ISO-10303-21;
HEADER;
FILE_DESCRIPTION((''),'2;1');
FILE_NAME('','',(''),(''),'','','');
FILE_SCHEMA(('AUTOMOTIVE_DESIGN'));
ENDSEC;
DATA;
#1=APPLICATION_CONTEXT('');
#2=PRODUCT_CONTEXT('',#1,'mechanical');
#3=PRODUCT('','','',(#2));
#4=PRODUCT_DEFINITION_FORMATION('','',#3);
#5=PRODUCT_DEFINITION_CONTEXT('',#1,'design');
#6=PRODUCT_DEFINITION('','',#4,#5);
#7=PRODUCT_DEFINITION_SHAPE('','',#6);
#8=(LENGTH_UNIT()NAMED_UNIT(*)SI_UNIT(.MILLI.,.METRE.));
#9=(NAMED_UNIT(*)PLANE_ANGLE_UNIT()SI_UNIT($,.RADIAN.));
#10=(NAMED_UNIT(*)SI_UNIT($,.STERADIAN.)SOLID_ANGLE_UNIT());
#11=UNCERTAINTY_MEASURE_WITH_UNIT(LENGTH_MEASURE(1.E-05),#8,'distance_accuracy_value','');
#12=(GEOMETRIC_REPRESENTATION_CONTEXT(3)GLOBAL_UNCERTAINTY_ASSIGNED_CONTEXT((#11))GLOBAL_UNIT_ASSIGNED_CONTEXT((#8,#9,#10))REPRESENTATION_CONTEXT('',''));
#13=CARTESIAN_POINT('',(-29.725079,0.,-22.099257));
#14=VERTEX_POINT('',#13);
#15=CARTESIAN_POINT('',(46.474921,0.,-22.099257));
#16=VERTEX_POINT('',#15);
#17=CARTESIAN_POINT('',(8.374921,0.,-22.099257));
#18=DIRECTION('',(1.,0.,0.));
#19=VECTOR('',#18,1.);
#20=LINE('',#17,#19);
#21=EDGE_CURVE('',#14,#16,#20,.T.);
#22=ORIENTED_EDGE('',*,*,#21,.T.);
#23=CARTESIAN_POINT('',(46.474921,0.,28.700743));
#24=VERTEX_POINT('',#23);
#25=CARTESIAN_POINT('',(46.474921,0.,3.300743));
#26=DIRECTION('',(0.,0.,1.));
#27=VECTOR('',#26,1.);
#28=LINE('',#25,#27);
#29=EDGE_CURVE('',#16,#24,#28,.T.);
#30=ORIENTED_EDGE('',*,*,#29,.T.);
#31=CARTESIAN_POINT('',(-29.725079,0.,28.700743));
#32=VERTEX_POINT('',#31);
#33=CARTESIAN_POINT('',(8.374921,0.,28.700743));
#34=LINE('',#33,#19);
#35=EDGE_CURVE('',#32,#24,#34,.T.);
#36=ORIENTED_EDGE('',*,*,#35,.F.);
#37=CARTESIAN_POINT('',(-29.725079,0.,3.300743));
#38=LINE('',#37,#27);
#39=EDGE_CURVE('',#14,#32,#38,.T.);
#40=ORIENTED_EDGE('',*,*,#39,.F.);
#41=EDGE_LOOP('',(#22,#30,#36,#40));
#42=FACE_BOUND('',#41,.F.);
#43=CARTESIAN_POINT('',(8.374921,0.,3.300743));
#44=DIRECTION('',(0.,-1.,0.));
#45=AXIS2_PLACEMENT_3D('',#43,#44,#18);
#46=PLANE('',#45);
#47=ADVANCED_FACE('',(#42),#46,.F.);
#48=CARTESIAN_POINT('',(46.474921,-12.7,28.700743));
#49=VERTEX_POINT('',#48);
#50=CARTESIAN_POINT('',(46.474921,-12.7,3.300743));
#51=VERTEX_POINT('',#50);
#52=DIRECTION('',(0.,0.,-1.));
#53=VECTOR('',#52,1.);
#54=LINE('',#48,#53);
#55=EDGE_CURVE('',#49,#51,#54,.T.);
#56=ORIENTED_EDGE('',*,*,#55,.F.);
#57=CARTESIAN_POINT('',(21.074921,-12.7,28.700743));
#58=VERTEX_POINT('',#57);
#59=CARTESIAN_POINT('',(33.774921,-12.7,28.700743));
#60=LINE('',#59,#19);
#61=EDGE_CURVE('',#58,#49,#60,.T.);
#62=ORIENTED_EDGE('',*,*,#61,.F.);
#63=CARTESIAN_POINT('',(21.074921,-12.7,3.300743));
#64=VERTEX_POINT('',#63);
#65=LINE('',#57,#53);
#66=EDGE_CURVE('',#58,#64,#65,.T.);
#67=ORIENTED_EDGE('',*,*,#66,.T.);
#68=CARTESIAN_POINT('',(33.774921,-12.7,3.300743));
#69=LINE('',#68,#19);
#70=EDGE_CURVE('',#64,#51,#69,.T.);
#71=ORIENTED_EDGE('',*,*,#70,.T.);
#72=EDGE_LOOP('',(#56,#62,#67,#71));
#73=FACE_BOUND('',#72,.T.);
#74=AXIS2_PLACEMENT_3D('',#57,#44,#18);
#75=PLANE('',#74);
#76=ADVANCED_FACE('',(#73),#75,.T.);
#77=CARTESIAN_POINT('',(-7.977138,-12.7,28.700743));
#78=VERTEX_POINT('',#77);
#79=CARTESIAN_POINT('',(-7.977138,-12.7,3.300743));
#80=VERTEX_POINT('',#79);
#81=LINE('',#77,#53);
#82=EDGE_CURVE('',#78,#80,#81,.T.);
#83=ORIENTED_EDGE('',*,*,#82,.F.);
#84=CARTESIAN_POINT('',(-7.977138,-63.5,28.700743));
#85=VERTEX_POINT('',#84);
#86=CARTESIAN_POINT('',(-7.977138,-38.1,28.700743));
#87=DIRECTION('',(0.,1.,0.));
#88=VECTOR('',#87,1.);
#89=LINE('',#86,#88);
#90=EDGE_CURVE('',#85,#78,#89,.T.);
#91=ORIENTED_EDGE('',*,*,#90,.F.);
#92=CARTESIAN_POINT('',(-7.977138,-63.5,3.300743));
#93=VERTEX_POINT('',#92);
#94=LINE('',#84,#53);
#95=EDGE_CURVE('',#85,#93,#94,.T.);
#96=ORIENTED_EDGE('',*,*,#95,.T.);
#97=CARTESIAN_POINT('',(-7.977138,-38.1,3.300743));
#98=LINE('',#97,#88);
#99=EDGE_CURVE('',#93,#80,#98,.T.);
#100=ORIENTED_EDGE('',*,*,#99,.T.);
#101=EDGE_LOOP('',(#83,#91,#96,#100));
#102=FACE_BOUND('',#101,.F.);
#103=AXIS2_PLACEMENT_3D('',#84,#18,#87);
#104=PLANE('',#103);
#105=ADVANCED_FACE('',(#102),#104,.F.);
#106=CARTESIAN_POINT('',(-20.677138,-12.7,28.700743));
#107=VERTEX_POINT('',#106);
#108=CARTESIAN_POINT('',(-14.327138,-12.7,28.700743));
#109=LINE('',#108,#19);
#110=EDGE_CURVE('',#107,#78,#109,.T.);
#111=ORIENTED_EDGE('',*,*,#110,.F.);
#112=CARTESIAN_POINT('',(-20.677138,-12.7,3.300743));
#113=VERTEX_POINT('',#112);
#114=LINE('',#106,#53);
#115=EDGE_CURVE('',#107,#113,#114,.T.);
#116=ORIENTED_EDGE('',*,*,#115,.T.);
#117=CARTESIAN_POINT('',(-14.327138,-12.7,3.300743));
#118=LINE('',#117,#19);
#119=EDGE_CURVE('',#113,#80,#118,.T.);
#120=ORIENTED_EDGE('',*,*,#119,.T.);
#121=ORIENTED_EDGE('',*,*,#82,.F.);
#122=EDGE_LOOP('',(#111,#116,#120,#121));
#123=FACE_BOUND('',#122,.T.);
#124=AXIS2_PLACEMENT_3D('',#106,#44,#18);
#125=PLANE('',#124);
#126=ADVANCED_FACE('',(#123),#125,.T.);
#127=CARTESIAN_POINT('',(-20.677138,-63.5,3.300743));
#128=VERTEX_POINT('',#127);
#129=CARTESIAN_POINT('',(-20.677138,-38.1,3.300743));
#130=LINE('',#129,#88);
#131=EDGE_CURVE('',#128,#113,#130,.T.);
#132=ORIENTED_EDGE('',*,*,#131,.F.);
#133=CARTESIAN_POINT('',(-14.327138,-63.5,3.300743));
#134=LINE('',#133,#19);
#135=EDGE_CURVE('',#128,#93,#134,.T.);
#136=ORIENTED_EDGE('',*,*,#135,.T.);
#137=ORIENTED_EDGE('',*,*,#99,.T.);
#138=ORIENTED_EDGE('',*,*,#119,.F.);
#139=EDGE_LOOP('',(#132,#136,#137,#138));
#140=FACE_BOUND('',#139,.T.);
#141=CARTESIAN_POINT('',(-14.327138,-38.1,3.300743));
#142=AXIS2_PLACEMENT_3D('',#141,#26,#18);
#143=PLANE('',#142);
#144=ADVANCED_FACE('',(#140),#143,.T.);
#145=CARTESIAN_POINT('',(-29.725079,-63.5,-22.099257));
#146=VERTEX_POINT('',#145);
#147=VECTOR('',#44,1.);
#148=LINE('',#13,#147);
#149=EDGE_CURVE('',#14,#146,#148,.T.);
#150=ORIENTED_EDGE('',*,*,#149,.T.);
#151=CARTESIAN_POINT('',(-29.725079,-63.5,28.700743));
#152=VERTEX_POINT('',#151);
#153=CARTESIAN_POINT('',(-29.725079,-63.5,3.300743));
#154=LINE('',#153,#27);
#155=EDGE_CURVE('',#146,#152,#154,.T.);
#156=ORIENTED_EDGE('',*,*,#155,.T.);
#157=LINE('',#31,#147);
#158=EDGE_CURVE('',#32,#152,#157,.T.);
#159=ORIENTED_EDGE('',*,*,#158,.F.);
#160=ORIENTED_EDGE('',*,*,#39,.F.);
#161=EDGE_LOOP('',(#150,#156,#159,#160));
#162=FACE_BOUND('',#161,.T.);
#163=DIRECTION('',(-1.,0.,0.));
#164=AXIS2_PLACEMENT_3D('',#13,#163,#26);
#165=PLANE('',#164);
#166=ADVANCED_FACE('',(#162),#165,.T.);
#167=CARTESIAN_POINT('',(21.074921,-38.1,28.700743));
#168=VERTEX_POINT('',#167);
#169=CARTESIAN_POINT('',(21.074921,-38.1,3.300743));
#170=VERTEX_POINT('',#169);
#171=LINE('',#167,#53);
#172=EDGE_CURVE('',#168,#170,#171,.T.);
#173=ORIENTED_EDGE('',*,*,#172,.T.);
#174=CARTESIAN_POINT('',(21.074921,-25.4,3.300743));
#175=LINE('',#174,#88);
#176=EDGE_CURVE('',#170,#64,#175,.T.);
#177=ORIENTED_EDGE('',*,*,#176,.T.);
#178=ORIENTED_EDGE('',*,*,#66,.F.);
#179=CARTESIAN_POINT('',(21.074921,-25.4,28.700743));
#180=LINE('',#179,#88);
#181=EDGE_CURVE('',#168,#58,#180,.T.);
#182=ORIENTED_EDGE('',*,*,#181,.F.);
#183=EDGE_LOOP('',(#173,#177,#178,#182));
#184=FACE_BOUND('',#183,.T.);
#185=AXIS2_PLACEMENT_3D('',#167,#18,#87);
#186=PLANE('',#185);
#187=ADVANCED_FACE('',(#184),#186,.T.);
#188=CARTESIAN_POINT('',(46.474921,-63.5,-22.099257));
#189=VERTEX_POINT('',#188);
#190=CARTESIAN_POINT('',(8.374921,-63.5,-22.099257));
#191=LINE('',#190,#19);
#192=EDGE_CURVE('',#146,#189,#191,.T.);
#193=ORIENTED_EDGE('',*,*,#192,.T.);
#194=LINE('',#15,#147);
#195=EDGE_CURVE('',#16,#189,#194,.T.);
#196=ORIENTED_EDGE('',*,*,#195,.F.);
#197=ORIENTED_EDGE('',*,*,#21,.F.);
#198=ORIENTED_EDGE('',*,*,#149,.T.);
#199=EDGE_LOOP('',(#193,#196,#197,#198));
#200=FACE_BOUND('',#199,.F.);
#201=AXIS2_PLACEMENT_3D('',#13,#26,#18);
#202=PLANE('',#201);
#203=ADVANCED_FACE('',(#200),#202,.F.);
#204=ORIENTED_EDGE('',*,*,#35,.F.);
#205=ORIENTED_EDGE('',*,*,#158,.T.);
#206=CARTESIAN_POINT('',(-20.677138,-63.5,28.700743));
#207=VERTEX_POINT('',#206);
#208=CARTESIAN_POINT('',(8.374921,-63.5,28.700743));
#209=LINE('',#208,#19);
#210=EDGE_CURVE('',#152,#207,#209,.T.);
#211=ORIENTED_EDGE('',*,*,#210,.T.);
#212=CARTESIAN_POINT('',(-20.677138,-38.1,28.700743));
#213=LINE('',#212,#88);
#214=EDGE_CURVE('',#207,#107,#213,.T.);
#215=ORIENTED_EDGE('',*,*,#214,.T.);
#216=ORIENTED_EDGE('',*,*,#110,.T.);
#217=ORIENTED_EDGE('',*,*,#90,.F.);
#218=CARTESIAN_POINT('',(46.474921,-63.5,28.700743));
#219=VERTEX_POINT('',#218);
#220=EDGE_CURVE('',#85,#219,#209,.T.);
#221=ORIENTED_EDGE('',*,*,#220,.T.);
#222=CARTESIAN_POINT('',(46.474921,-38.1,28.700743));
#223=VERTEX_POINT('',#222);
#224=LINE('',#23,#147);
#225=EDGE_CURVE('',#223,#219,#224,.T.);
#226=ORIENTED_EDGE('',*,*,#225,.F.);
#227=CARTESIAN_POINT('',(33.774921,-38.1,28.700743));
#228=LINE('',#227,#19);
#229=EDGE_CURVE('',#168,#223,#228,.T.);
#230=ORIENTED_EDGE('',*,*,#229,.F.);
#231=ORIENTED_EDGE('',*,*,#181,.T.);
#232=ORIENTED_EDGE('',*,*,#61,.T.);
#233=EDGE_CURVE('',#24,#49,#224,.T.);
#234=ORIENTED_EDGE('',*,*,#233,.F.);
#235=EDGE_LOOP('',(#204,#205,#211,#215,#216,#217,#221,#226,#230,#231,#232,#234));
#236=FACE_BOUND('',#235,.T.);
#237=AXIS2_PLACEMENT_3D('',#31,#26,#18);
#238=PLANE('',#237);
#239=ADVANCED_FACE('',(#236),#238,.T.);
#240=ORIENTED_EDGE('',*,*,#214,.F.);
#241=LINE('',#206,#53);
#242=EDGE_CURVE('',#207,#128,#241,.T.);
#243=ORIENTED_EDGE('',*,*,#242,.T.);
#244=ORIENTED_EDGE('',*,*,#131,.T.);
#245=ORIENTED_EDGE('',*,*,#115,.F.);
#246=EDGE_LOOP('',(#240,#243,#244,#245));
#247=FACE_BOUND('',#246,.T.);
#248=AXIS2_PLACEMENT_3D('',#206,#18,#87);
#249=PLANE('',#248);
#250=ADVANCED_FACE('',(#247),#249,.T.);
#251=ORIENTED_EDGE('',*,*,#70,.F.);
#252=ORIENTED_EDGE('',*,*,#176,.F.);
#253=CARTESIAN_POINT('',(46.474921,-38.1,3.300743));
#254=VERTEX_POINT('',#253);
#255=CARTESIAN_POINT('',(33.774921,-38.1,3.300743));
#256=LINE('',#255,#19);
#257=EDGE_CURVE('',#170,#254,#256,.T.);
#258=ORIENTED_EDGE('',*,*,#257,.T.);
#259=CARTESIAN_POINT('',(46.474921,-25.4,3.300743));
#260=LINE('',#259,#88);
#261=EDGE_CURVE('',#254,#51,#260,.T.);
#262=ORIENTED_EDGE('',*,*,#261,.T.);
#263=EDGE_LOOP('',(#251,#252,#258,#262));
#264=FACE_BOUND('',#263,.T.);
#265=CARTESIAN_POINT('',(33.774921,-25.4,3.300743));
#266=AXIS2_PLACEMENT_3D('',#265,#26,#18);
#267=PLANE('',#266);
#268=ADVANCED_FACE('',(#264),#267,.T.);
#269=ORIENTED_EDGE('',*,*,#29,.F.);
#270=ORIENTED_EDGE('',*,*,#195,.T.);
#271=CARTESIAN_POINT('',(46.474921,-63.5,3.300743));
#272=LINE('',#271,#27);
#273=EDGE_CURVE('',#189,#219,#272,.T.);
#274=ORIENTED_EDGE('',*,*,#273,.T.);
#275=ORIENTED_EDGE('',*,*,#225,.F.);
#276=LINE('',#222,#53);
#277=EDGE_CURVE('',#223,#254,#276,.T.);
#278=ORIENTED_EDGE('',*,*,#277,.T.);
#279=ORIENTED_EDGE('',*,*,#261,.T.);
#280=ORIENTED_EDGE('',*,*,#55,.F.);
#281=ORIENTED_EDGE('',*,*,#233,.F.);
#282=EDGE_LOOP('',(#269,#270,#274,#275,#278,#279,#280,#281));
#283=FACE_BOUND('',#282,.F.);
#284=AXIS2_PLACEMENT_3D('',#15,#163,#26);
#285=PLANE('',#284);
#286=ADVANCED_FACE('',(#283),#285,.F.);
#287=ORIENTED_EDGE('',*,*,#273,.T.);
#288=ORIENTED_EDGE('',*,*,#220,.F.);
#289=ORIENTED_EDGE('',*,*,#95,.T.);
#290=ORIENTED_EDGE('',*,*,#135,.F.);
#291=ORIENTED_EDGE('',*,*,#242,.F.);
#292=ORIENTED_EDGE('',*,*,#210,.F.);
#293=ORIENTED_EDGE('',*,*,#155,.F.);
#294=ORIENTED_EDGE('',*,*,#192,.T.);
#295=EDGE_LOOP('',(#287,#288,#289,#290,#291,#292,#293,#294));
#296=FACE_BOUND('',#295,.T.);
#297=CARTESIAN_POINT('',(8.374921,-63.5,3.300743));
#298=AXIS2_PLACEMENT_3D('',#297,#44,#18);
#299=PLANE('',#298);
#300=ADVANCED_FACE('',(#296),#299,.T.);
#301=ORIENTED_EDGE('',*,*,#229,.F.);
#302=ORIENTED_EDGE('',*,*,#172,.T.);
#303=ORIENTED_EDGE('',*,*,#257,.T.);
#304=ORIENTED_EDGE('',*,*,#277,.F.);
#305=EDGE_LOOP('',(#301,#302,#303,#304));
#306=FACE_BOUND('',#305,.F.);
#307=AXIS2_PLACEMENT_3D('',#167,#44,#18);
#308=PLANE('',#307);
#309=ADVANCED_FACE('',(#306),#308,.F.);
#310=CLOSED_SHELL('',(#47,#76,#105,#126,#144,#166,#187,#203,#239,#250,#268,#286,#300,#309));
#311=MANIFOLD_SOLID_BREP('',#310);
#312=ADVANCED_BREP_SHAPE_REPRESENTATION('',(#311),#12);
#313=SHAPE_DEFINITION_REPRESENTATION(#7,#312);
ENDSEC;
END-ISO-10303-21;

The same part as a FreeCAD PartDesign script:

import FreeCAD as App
import Part
import Sketcher
Q = App.Units.Quantity

doc = App.newDocument("Part")
params = doc.addObject("Spreadsheet::Sheet", "Params")
for row, (alias, value) in enumerate([
    ("sketch1_width", "3 in"),
    ("sketch1_height", "2 in"),
    ("pad1_length", "2.5 in"),
    ("sketch2_height", "2 in"),
    ("sketch2_width", "0.5 in"),
    ("pocket1_length", "1 in"),
    ("sketch3_width", "1 in"),
    ("pocket2_length", "1 in"),
], start=1):
    params.set(f"A{row}", alias)
    params.set(f"B{row}", "=" + value)
    params.setAlias(f"B{row}", alias)

body = doc.addObject("PartDesign::Body", "Body")

# Sketch on XZ plane
sketch1 = doc.addObject("Sketcher::SketchObject", "Sketch")
body.addObject(sketch1)
sketch1.AttachmentSupport = (doc.XZ_Plane, [""])
sketch1.MapMode = "FlatFace"
sketch1.addGeometry(Part.LineSegment(App.Vector(-29.725079, 28.700743, 0), App.Vector(-29.725079, -22.099257, 0)), False)
sketch1.addGeometry(Part.LineSegment(App.Vector(-29.725079, -22.099257, 0), App.Vector(46.474921, -22.099257, 0)), False)
sketch1.addGeometry(Part.LineSegment(App.Vector(46.474921, -22.099257, 0), App.Vector(46.474921, 28.700743, 0)), False)
sketch1.addGeometry(Part.LineSegment(App.Vector(46.474921, 28.700743, 0), App.Vector(-29.725079, 28.700743, 0)), False)
sketch1.addConstraint(Sketcher.Constraint("Coincident", 0, 2, 1, 1))
sketch1.addConstraint(Sketcher.Constraint("Coincident", 1, 2, 2, 1))
sketch1.addConstraint(Sketcher.Constraint("Coincident", 2, 2, 3, 1))
sketch1.addConstraint(Sketcher.Constraint("Coincident", 3, 2, 0, 1))
sketch1.addConstraint(Sketcher.Constraint("Vertical", 0))
sketch1.addConstraint(Sketcher.Constraint("Horizontal", 1))
sketch1.addConstraint(Sketcher.Constraint("Vertical", 2))
sketch1.addConstraint(Sketcher.Constraint("Horizontal", 3))
sketch1.addConstraint(Sketcher.Constraint("DistanceX", 1, 1, 1, 2, Q("3 in")))
sketch1.addConstraint(Sketcher.Constraint("DistanceY", 0, 2, 0, 1, Q("2 in")))
sketch1.addConstraint(Sketcher.Constraint("DistanceX", 0, 2, -1, 1, 29.725079))
sketch1.addConstraint(Sketcher.Constraint("DistanceY", 0, 2, -1, 1, 22.099257))
sketch1.setExpression("Constraints[8]", "Params.sketch1_width")
sketch1.setExpression("Constraints[9]", "Params.sketch1_height")
pad1 = doc.addObject("PartDesign::Pad", "Pad")
body.addObject(pad1)
pad1.Profile = sketch1
pad1.setExpression("Length", "Params.pad1_length")

# Sketch on XY plane
sketch2 = doc.addObject("Sketcher::SketchObject", "Sketch001")
body.addObject(sketch2)
sketch2.AttachmentSupport = (doc.XY_Plane, [""])
sketch2.MapMode = "FlatFace"
sketch2.AttachmentOffset = App.Placement(App.Vector(0, 0, 28.700743), App.Rotation())
sketch2.addGeometry(Part.LineSegment(App.Vector(-20.677138, -12.7, 0), App.Vector(-20.677138, -63.5, 0)), False)
sketch2.addGeometry(Part.LineSegment(App.Vector(-20.677138, -63.5, 0), App.Vector(-7.977138, -63.5, 0)), False)
sketch2.addGeometry(Part.LineSegment(App.Vector(-7.977138, -63.5, 0), App.Vector(-7.977138, -12.7, 0)), False)
sketch2.addGeometry(Part.LineSegment(App.Vector(-7.977138, -12.7, 0), App.Vector(-20.677138, -12.7, 0)), False)
sketch2.addConstraint(Sketcher.Constraint("Coincident", 0, 2, 1, 1))
sketch2.addConstraint(Sketcher.Constraint("Coincident", 1, 2, 2, 1))
sketch2.addConstraint(Sketcher.Constraint("Coincident", 2, 2, 3, 1))
sketch2.addConstraint(Sketcher.Constraint("Coincident", 3, 2, 0, 1))
sketch2.addConstraint(Sketcher.Constraint("Vertical", 0))
sketch2.addConstraint(Sketcher.Constraint("Horizontal", 1))
sketch2.addConstraint(Sketcher.Constraint("Vertical", 2))
sketch2.addConstraint(Sketcher.Constraint("Horizontal", 3))
sketch2.addConstraint(Sketcher.Constraint("DistanceY", 0, 2, 0, 1, Q("2 in")))
sketch2.addConstraint(Sketcher.Constraint("DistanceX", 1, 1, 1, 2, Q("0.5 in")))
sketch2.addConstraint(Sketcher.Constraint("DistanceY", 0, 2, -1, 1, Q("2.5 in")))
sketch2.addConstraint(Sketcher.Constraint("DistanceX", 0, 2, -1, 1, 20.677138))
sketch2.setExpression("Constraints[8]", "Params.sketch2_height")
sketch2.setExpression("Constraints[9]", "Params.sketch2_width")
pocket1 = doc.addObject("PartDesign::Pocket", "Pocket")
body.addObject(pocket1)
pocket1.Profile = sketch2
pocket1.setExpression("Length", "Params.pocket1_length")

# Sketch on XY plane
sketch3 = doc.addObject("Sketcher::SketchObject", "Sketch002")
body.addObject(sketch3)
sketch3.AttachmentSupport = (doc.XY_Plane, [""])
sketch3.MapMode = "FlatFace"
sketch3.AttachmentOffset = App.Placement(App.Vector(0, 0, 28.700743), App.Rotation())
sketch3.addGeometry(Part.LineSegment(App.Vector(21.074921, -12.7, 0), App.Vector(21.074921, -38.1, 0)), False)
sketch3.addGeometry(Part.LineSegment(App.Vector(21.074921, -38.1, 0), App.Vector(46.474921, -38.1, 0)), False)
sketch3.addGeometry(Part.LineSegment(App.Vector(46.474921, -38.1, 0), App.Vector(46.474921, -12.7, 0)), False)
sketch3.addGeometry(Part.LineSegment(App.Vector(46.474921, -12.7, 0), App.Vector(21.074921, -12.7, 0)), False)
sketch3.addConstraint(Sketcher.Constraint("Coincident", 0, 2, 1, 1))
sketch3.addConstraint(Sketcher.Constraint("Coincident", 1, 2, 2, 1))
sketch3.addConstraint(Sketcher.Constraint("Coincident", 2, 2, 3, 1))
sketch3.addConstraint(Sketcher.Constraint("Coincident", 3, 2, 0, 1))
sketch3.addConstraint(Sketcher.Constraint("Vertical", 0))
sketch3.addConstraint(Sketcher.Constraint("Horizontal", 1))
sketch3.addConstraint(Sketcher.Constraint("Vertical", 2))
sketch3.addConstraint(Sketcher.Constraint("Horizontal", 3))
sketch3.addConstraint(Sketcher.Constraint("Equal", 3, 0))
sketch3.addConstraint(Sketcher.Constraint("DistanceX", 1, 1, 1, 2, Q("1 in")))
sketch3.addConstraint(Sketcher.Constraint("DistanceY", 0, 2, -1, 1, Q("1.5 in")))
sketch3.addConstraint(Sketcher.Constraint("DistanceX", -1, 1, 0, 2, 21.074921))
sketch3.setExpression("Constraints[9]", "Params.sketch3_width")
pocket2 = doc.addObject("PartDesign::Pocket", "Pocket001")
body.addObject(pocket2)
pocket2.Profile = sketch3
pocket2.setExpression("Length", "Params.pocket2_length")

doc.recompute()
